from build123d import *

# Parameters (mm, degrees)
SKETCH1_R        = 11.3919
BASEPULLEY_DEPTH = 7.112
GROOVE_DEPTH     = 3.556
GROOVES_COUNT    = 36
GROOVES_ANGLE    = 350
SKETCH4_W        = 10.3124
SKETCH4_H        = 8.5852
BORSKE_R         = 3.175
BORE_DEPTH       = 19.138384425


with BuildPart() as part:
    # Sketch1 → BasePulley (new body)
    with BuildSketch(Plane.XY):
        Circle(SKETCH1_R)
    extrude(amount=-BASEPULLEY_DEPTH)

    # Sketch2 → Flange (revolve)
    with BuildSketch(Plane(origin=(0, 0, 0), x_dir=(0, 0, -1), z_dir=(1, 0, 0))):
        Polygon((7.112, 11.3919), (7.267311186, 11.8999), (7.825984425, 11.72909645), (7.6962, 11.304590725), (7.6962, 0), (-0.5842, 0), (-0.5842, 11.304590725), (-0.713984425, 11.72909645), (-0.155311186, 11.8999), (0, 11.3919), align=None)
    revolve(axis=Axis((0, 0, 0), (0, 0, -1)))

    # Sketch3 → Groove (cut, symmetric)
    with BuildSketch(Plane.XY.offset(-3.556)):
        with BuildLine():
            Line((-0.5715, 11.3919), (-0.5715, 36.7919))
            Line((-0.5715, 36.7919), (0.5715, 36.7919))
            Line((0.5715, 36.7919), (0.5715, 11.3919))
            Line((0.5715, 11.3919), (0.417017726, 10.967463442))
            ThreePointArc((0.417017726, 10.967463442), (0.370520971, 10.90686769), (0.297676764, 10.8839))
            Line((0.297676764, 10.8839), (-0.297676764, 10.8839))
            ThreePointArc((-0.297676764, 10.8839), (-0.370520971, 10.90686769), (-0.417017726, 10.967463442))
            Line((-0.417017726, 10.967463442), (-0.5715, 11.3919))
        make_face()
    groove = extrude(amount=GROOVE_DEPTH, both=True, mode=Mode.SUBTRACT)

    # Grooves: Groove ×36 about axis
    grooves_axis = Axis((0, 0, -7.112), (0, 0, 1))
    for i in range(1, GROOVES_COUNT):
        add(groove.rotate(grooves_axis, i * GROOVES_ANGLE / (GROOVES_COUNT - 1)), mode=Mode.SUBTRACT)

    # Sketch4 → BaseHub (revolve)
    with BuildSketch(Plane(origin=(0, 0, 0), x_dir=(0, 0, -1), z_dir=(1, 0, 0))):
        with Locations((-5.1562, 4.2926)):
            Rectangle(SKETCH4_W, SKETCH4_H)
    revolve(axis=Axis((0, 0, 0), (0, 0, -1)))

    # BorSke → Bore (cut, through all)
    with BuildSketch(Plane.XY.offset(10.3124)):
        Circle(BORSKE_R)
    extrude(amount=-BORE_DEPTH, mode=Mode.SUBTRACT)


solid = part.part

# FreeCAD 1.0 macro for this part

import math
import FreeCAD as App
import Part
import Sketcher
Q = App.Units.Quantity


def add_polygon(sketch, points):
    """Adds a closed chain of lines whose ends are joined by coincident constraints."""
    first, n = sketch.GeometryCount, len(points)
    for a, b in zip(points, points[1:] + points[:1]):
        sketch.addGeometry(Part.LineSegment(App.Vector(*a, 0), App.Vector(*b, 0)), False)
    for i in range(n):
        sketch.addConstraint(Sketcher.Constraint("Coincident", first + i, 2, first + (i + 1) % n, 1))

doc = App.newDocument("Part")
body = doc.addObject("PartDesign::Body", "Body")

sketch1 = body.newObject("Sketcher::SketchObject", "Sketch")
sketch1.AttachmentSupport = (doc.getObject("XY_Plane"), [""])
sketch1.MapMode = "FlatFace"
sketch1.addGeometry(Part.Circle(App.Vector(0, 0, 0), App.Vector(0, 0, 1), 11), False)
sketch1.addConstraint(Sketcher.Constraint("Coincident", 0, 3, -1, 1))
sketch1.addConstraint(Sketcher.Constraint("Diameter", 0, Q("0.897 in")))
pad1 = body.newObject("PartDesign::Pad", "Pad")
pad1.Profile = sketch1
pad1.Length = Q("0.28 in")
pad1.Reversed = True

sketch2 = body.newObject("Sketcher::SketchObject", "Sketch001")
sketch2.AttachmentSupport = (doc.getObject("YZ_Plane"), [""])
sketch2.MapMode = "FlatFace"
add_polygon(sketch2, [(11.9, -7.27), (11.39, -7.11), (11.39, 0), (11.9, 0.16), (11.73, 0.71), (11.3, 0.58), (0, 0.58), (0, -7.7), (11.3, -7.7), (11.73, -7.83)])
sketch2.addConstraint(Sketcher.Constraint("Vertical", 1))
sketch2.addConstraint(Sketcher.Constraint("Horizontal", 5))
sketch2.addConstraint(Sketcher.Constraint("Vertical", 6))
sketch2.addConstraint(Sketcher.Constraint("Horizontal", 7))
sketch2.addConstraint(Sketcher.Constraint("PointOnObject", 1, 2, -1))
sketch2.addConstraint(Sketcher.Constraint("PointOnObject", 5, 2, -2))
sketch2.addConstraint(Sketcher.Constraint("Perpendicular", 2, 3))
sketch2.addConstraint(Sketcher.Constraint("Perpendicular", 3, 4))
sketch2.addConstraint(Sketcher.Constraint("Parallel", 0, 8))
sketch2.addConstraint(Sketcher.Constraint("Perpendicular", 8, 9))
sketch2.addConstraint(Sketcher.Constraint("Vertical", 4, 2, 7, 2))
sketch2.addConstraint(Sketcher.Constraint("Vertical", 3, 2, 8, 2))
sketch2.addConstraint(Sketcher.Constraint("Vertical", 2, 2, 9, 2))
sketch2.addConstraint(Sketcher.Constraint("Equal", 0, 2))
sketch2.addConstraint(Sketcher.Constraint("Angle", 0, Q("163 deg")))
sketch2.addConstraint(Sketcher.Constraint("DistanceY", 1, 1, 1, 2, Q("0.28 in")))
sketch2.addConstraint(Sketcher.Constraint("DistanceY", 6, 2, 6, 1, Q("0.326 in")))
sketch2.addConstraint(Sketcher.Constraint("DistanceX", 1, 2, 2, 2, Q("0.02 in")))
sketch2.addConstraint(Sketcher.Constraint("Distance", 3, Q("0.023 in")))
sketch2.addConstraint(Sketcher.Constraint("DistanceX", -1, 1, 0, 2, Q("0.4485 in")))
revolution = body.newObject("PartDesign::Revolution", "Revolution")
revolution.Profile = sketch2
revolution.ReferenceAxis = (sketch2, ["V_Axis"])
revolution.Angle = 360

sketch3 = body.newObject("Sketcher::SketchObject", "Sketch002")
sketch3.AttachmentSupport = (doc.getObject("XY_Plane"), [""])
sketch3.MapMode = "FlatFace"
sketch3.AttachmentOffset = App.Placement(App.Vector(0, 0, -0.14 * 25.4), App.Rotation())
sketch3.addGeometry(Part.LineSegment(App.Vector(-0.57, 36.79, 0), App.Vector(-0.57, 11.39, 0)), False)
sketch3.addGeometry(Part.LineSegment(App.Vector(-0.57, 11.39, 0), App.Vector(-0.42, 10.97, 0)), False)
sketch3.addGeometry(Part.ArcOfCircle(Part.Circle(App.Vector(-0.3, 11.01, 0), App.Vector(0, 0, 1), 0.13), math.radians(-160), math.radians(-90)), False)
sketch3.addGeometry(Part.LineSegment(App.Vector(-0.3, 10.88, 0), App.Vector(0.3, 10.88, 0)), False)
sketch3.addGeometry(Part.ArcOfCircle(Part.Circle(App.Vector(0.3, 11.01, 0), App.Vector(0, 0, 1), 0.13), math.radians(-90), math.radians(-20)), False)
sketch3.addGeometry(Part.LineSegment(App.Vector(0.42, 10.97, 0), App.Vector(0.57, 11.39, 0)), False)
sketch3.addGeometry(Part.LineSegment(App.Vector(0.57, 11.39, 0), App.Vector(0.57, 36.79, 0)), False)
sketch3.addGeometry(Part.LineSegment(App.Vector(0.57, 36.79, 0), App.Vector(-0.57, 36.79, 0)), False)
sketch3.addConstraint(Sketcher.Constraint("Coincident", 0, 2, 1, 1))
sketch3.addConstraint(Sketcher.Constraint("Tangent", 1, 2, 2, 1))
sketch3.addConstraint(Sketcher.Constraint("Tangent", 2, 2, 3, 1))
sketch3.addConstraint(Sketcher.Constraint("Tangent", 3, 2, 4, 1))
sketch3.addConstraint(Sketcher.Constraint("Tangent", 4, 2, 5, 1))
sketch3.addConstraint(Sketcher.Constraint("Coincident", 5, 2, 6, 1))
sketch3.addConstraint(Sketcher.Constraint("Coincident", 6, 2, 7, 1))
sketch3.addConstraint(Sketcher.Constraint("Coincident", 7, 2, 0, 1))
sketch3.addConstraint(Sketcher.Constraint("Vertical", 0))
sketch3.addConstraint(Sketcher.Constraint("Horizontal", 3))
sketch3.addConstraint(Sketcher.Constraint("Vertical", 6))
sketch3.addConstraint(Sketcher.Constraint("Horizontal", 7))
sketch3.addConstraint(Sketcher.Constraint("Equal", 2, 4))
sketch3.addConstraint(Sketcher.Constraint("Symmetric", 1, 2, 4, 2, -2))
sketch3.addConstraint(Sketcher.Constraint("Horizontal", 0, 2, 5, 2))
sketch3.addConstraint(Sketcher.Constraint("DistanceY", 0, 2, 0, 1, Q("1 in")))
sketch3.addConstraint(Sketcher.Constraint("Angle", 1, Q("-70 deg")))
sketch3.addConstraint(Sketcher.Constraint("Radius", 2, Q("0.005 in")))
sketch3.addConstraint(Sketcher.Constraint("DistanceX", 7, 2, 7, 1, Q("0.045 in")))
sketch3.addConstraint(Sketcher.Constraint("DistanceY", 2, 2, 0, 2, Q("0.02 in")))
sketch3.addConstraint(Sketcher.Constraint("DistanceY", -1, 1, 2, 3, Q("0.4335 in")))
pocket1 = body.newObject("PartDesign::Pocket", "Pocket")
pocket1.Profile = sketch3
pocket1.Length = Q("0.28 in")
pocket1.Midplane = True
doc.recompute()

polarpattern = body.newObject("PartDesign::PolarPattern", "PolarPattern")
polarpattern.Originals = [pocket1]
polarpattern.Axis = (doc.getObject("Z_Axis"), [""])
polarpattern.Angle = 360
polarpattern.Occurrences = 36
body.Tip = polarpattern

sketch4 = body.newObject("Sketcher::SketchObject", "Sketch003")
sketch4.AttachmentSupport = (doc.getObject("YZ_Plane"), [""])
sketch4.MapMode = "FlatFace"
add_polygon(sketch4, [(9, 10), (0, 10), (0, 0), (9, 0)])
sketch4.addConstraint(Sketcher.Constraint("Horizontal", 0))
sketch4.addConstraint(Sketcher.Constraint("Vertical", 1))
sketch4.addConstraint(Sketcher.Constraint("Horizontal", 2))
sketch4.addConstraint(Sketcher.Constraint("Vertical", 3))
sketch4.addConstraint(Sketcher.Constraint("Coincident", 1, 2, -1, 1))
sketch4.addConstraint(Sketcher.Constraint("DistanceX", 0, 2, 0, 1, Q("0.338 in")))
sketch4.addConstraint(Sketcher.Constraint("DistanceY", 1, 2, 1, 1, Q("0.406 in")))
revolution2 = body.newObject("PartDesign::Revolution", "Revolution001")
revolution2.Profile = sketch4
revolution2.ReferenceAxis = (sketch4, ["V_Axis"])
revolution2.Angle = 360

sketch5 = body.newObject("Sketcher::SketchObject", "Sketch004")
sketch5.AttachmentSupport = (doc.getObject("XY_Plane"), [""])
sketch5.MapMode = "FlatFace"
sketch5.AttachmentOffset = App.Placement(App.Vector(0, 0, 0.406 * 25.4), App.Rotation())
sketch5.addGeometry(Part.Circle(App.Vector(0, 0, 0), App.Vector(0, 0, 1), 3.2), False)
sketch5.addConstraint(Sketcher.Constraint("Coincident", 0, 3, -1, 1))
sketch5.addConstraint(Sketcher.Constraint("Diameter", 0, Q("0.25 in")))
pocket2 = body.newObject("PartDesign::Pocket", "Pocket001")
pocket2.Profile = sketch5
pocket2.Type = "ThroughAll"

doc.recompute()
